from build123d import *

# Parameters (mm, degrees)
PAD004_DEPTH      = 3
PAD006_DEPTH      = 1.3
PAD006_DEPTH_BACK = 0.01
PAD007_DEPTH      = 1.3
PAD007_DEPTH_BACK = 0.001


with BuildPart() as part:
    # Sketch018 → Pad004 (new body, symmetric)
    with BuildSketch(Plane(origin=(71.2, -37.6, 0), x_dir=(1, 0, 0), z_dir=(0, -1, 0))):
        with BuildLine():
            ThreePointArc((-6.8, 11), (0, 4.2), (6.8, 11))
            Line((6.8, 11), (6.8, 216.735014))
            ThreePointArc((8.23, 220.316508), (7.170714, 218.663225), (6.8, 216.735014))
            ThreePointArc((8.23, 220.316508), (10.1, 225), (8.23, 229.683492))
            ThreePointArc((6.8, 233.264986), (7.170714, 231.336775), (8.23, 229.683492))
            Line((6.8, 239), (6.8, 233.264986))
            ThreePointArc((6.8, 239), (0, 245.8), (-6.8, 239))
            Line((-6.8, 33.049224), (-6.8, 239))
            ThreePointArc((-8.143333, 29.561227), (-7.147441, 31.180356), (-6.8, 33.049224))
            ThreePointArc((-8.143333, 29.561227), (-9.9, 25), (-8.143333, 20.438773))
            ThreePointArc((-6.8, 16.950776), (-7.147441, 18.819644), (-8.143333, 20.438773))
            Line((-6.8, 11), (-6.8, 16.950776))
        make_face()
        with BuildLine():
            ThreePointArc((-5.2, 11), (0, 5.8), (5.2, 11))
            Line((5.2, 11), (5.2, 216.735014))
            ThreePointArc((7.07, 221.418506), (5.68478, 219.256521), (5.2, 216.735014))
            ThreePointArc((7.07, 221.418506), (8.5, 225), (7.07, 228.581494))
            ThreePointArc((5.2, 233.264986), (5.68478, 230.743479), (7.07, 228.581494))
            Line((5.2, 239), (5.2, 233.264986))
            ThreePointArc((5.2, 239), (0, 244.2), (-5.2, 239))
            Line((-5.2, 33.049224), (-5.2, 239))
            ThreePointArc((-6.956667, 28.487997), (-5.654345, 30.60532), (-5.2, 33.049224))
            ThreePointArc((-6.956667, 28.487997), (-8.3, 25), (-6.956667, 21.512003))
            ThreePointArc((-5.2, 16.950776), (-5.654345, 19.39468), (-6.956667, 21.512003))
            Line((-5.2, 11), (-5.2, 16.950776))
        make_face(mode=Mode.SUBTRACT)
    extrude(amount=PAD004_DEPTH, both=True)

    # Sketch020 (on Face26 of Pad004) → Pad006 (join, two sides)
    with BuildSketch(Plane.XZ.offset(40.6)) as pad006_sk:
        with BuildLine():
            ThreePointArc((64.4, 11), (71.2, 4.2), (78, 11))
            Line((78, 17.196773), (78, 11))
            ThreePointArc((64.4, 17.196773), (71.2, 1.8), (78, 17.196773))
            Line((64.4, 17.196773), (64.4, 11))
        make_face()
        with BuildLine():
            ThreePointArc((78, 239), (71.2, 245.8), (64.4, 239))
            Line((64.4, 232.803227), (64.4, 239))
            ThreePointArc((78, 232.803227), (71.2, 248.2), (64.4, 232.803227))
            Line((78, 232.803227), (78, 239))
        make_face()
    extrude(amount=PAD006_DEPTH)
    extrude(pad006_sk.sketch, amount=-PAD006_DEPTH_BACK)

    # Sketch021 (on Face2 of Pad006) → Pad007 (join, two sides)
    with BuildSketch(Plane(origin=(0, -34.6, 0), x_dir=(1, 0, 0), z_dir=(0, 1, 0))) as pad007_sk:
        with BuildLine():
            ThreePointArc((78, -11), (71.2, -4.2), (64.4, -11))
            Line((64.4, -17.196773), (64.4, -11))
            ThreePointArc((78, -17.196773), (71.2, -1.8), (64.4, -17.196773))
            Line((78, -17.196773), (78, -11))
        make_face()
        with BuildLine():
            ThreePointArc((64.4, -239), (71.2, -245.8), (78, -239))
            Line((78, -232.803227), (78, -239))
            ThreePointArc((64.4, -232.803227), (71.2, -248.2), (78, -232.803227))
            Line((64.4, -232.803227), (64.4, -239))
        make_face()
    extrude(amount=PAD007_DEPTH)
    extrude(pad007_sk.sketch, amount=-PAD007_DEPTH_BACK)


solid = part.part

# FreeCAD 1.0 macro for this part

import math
import FreeCAD as App
import Part
import Sketcher

V = App.Vector
Q = App.Units.Quantity

doc = App.newDocument("Part")
body = doc.addObject("PartDesign::Body", "Body")

# Sketch on XZ plane
sketch1 = body.newObject("Sketcher::SketchObject", "Sketch")
sketch1.AttachmentSupport = (doc.getObject("XZ_Plane"), [""])
sketch1.MapMode = "FlatFace"
sketch1.AttachmentOffset = App.Placement(V(0, 0, 37.6), App.Rotation())
sketch1.addGeometry([
    Part.ArcOfCircle(Part.Circle(V(71.2, 11, 0), V(0, 0, 1), 6.8), math.radians(180), math.radians(360)),  # 0
    Part.LineSegment(V(78, 11, 0), V(78, 216.735014, 0)),  # 1
    Part.ArcOfCircle(Part.Circle(V(83.199998, 216.735015, 0), V(0, 0, 1), 5.199998), math.radians(136.468841), math.radians(180.000006)),  # 2
    Part.ArcOfCircle(Part.Circle(V(74.500001, 225, 0), V(0, 0, 1), 6.799999), math.radians(-43.531155), math.radians(43.531155)),  # 3
    Part.ArcOfCircle(Part.Circle(V(83.199998, 233.264985, 0), V(0, 0, 1), 5.199998), math.radians(179.999994), math.radians(223.531159)),  # 4
    Part.LineSegment(V(78, 233.264986, 0), V(78, 239, 0)),  # 5
    Part.ArcOfCircle(Part.Circle(V(71.2, 239, 0), V(0, 0, 1), 6.8), math.radians(0), math.radians(180)),  # 6
    Part.LineSegment(V(64.4, 239, 0), V(64.4, 33.049224, 0)),  # 7
    Part.ArcOfCircle(Part.Circle(V(59.199993, 33.049226, 0), V(0, 0, 1), 5.200007), math.radians(-42.12638), math.radians(-0.000025)),  # 8
    Part.ArcOfCircle(Part.Circle(V(68.1, 25, 0), V(0, 0, 1), 6.8), math.radians(137.87358), math.radians(222.12642)),  # 9
    Part.ArcOfCircle(Part.Circle(V(59.199993, 16.950774, 0), V(0, 0, 1), 5.200007), math.radians(0.000025), math.radians(42.12638)),  # 10
    Part.LineSegment(V(64.4, 16.950776, 0), V(64.4, 11, 0)),  # 11
    Part.ArcOfCircle(Part.Circle(V(71.2, 11, 0), V(0, 0, 1), 5.2), math.radians(180), math.radians(360)),  # 12
    Part.LineSegment(V(66, 11, 0), V(66, 16.950776, 0)),  # 13
    Part.ArcOfCircle(Part.Circle(V(59.200005, 16.950778, 0), V(0, 0, 1), 6.799995), math.radians(-0.000014), math.radians(42.126435)),  # 14
    Part.ArcOfCircle(Part.Circle(V(68.100001, 25, 0), V(0, 0, 1), 5.200001), math.radians(137.873595), math.radians(222.126405)),  # 15
    Part.ArcOfCircle(Part.Circle(V(59.200005, 33.049222, 0), V(0, 0, 1), 6.799995), math.radians(-42.126435), math.radians(0.000014)),  # 16
    Part.LineSegment(V(66, 33.049224, 0), V(66, 239, 0)),  # 17
    Part.ArcOfCircle(Part.Circle(V(71.2, 239, 0), V(0, 0, 1), 5.2), math.radians(0), math.radians(180)),  # 18
    Part.LineSegment(V(76.4, 239, 0), V(76.4, 233.264986, 0)),  # 19
    Part.ArcOfCircle(Part.Circle(V(83.199997, 233.264985, 0), V(0, 0, 1), 6.799997), math.radians(179.999994), math.radians(223.531161)),  # 20
    Part.ArcOfCircle(Part.Circle(V(74.5, 225, 0), V(0, 0, 1), 5.2), math.radians(-43.531153), math.radians(43.531153)),  # 21
    Part.ArcOfCircle(Part.Circle(V(83.199997, 216.735015, 0), V(0, 0, 1), 6.799997), math.radians(136.468839), math.radians(180.000006)),  # 22
    Part.LineSegment(V(76.4, 216.735014, 0), V(76.4, 11, 0)),  # 23
], False)
sketch1.addConstraint([
    Sketcher.Constraint("Tangent", 0, 2, 1, 1),
    Sketcher.Constraint("Tangent", 1, 2, 2, 2),
    Sketcher.Constraint("Tangent", 2, 1, 3, 1),
    Sketcher.Constraint("Tangent", 3, 2, 4, 2),
    Sketcher.Constraint("Tangent", 4, 1, 5, 1),
    Sketcher.Constraint("Tangent", 5, 2, 6, 1),
    Sketcher.Constraint("Tangent", 6, 2, 7, 1),
    Sketcher.Constraint("Tangent", 7, 2, 8, 2),
    Sketcher.Constraint("Tangent", 8, 1, 9, 1),
    Sketcher.Constraint("Tangent", 9, 2, 10, 2),
    Sketcher.Constraint("Tangent", 10, 1, 11, 1),
    Sketcher.Constraint("Tangent", 11, 2, 0, 1),
    Sketcher.Constraint("Tangent", 12, 1, 13, 1),
    Sketcher.Constraint("Tangent", 13, 2, 14, 1),
    Sketcher.Constraint("Tangent", 14, 2, 15, 2),
    Sketcher.Constraint("Tangent", 15, 1, 16, 1),
    Sketcher.Constraint("Tangent", 16, 2, 17, 1),
    Sketcher.Constraint("Tangent", 17, 2, 18, 2),
    Sketcher.Constraint("Tangent", 18, 1, 19, 1),
    Sketcher.Constraint("Tangent", 19, 2, 20, 1),
    Sketcher.Constraint("Tangent", 20, 2, 21, 2),
    Sketcher.Constraint("Tangent", 21, 1, 22, 1),
    Sketcher.Constraint("Tangent", 22, 2, 23, 1),
    Sketcher.Constraint("Tangent", 23, 2, 12, 2),
    Sketcher.Constraint("Vertical", 1),
    Sketcher.Constraint("Vertical", 5),
    Sketcher.Constraint("Vertical", 7),
    Sketcher.Constraint("Vertical", 11),
    Sketcher.Constraint("Vertical", 13),
    Sketcher.Constraint("Vertical", 17),
    Sketcher.Constraint("Vertical", 19),
    Sketcher.Constraint("Vertical", 23),
    Sketcher.Constraint("Coincident", 12, 3, 0, 3),
    Sketcher.Constraint("Coincident", 15, 3, 9, 3),
    Sketcher.Constraint("Coincident", 18, 3, 6, 3),
    Sketcher.Constraint("Coincident", 20, 3, 4, 3),
    Sketcher.Constraint("Coincident", 21, 3, 3, 3),
    Sketcher.Constraint("Coincident", 22, 3, 2, 3),
    Sketcher.Constraint("Equal", 0, 3),
    Sketcher.Constraint("Equal", 2, 4),
    Sketcher.Constraint("Equal", 3, 6),
    Sketcher.Constraint("Equal", 6, 9),
    Sketcher.Constraint("Equal", 8, 10),
    Sketcher.Constraint("Equal", 4, 12),
    Sketcher.Constraint("Equal", 12, 15),
    Sketcher.Constraint("Equal", 14, 16),
    Sketcher.Constraint("Equal", 16, 20),
    Sketcher.Constraint("Horizontal", 16, 3, 7, 2),
    Sketcher.Constraint("Vertical", 2, 3, 4, 3),
    Sketcher.Constraint("Radius", 0, Q("6.8 mm")),
    Sketcher.Constraint("Radius", 2, Q("5.199998 mm")),
    Sketcher.Constraint("DistanceY", -1, 1, 0, 3, Q("11 mm")),
    Sketcher.Constraint("DistanceY", -1, 1, 3, 3, Q("225 mm")),
    Sketcher.Constraint("DistanceY", -1, 1, 6, 3, Q("239 mm")),
    Sketcher.Constraint("DistanceY", -1, 1, 9, 3, Q("25 mm")),
    Sketcher.Constraint("DistanceX", -1, 1, 0, 2, Q("78 mm")),
    Sketcher.Constraint("DistanceX", -1, 1, 3, 3, Q("74.500001 mm")),
    Sketcher.Constraint("DistanceX", -1, 1, 9, 3, Q("68.1 mm")),
])
pad1 = body.newObject("PartDesign::Pad", "Pad")
pad1.Profile = sketch1
pad1.Length = 6
pad1.Midplane = True

# Sketch on XZ plane
sketch2 = body.newObject("Sketcher::SketchObject", "Sketch001")
sketch2.AttachmentSupport = (doc.getObject("XZ_Plane"), [""])
sketch2.MapMode = "FlatFace"
sketch2.AttachmentOffset = App.Placement(V(0, 0, 40.6), App.Rotation())
sketch2.addGeometry([
    Part.ArcOfCircle(Part.Circle(V(71.2, 11, 0), V(0, 0, 1), 6.8), math.radians(180), math.radians(360)),  # 0
    Part.LineSegment(V(64.4, 11, 0), V(64.4, 17.196773, 0)),  # 1
    Part.ArcOfCircle(Part.Circle(V(71.2, 11, 0), V(0, 0, 1), 9.2), math.radians(137.657396), math.radians(402.342604)),  # 2
    Part.LineSegment(V(78, 17.196773, 0), V(78, 11, 0)),  # 3
    Part.ArcOfCircle(Part.Circle(V(71.2, 239, 0), V(0, 0, 1), 6.8), math.radians(0), math.radians(180)),  # 4
    Part.LineSegment(V(78, 239, 0), V(78, 232.803227, 0)),  # 5
    Part.ArcOfCircle(Part.Circle(V(71.2, 239, 0), V(0, 0, 1), 9.2), math.radians(-42.342604), math.radians(222.342604)),  # 6
    Part.LineSegment(V(64.4, 232.803227, 0), V(64.4, 239, 0)),  # 7
], False)
sketch2.addConstraint([
    Sketcher.Constraint("Tangent", 0, 1, 1, 1),
    Sketcher.Constraint("Coincident", 1, 2, 2, 1),
    Sketcher.Constraint("Coincident", 2, 2, 3, 1),
    Sketcher.Constraint("Tangent", 3, 2, 0, 2),
    Sketcher.Constraint("Tangent", 4, 1, 5, 1),
    Sketcher.Constraint("Coincident", 5, 2, 6, 1),
    Sketcher.Constraint("Coincident", 6, 2, 7, 1),
    Sketcher.Constraint("Tangent", 7, 2, 4, 2),
    Sketcher.Constraint("Vertical", 1),
    Sketcher.Constraint("Vertical", 3),
    Sketcher.Constraint("Vertical", 5),
    Sketcher.Constraint("Vertical", 7),
    Sketcher.Constraint("Coincident", 2, 3, 0, 3),
    Sketcher.Constraint("Coincident", 6, 3, 4, 3),
    Sketcher.Constraint("Equal", 0, 4),
    Sketcher.Constraint("Equal", 2, 6),
    Sketcher.Constraint("Vertical", 2, 3, 4, 3),
    Sketcher.Constraint("Radius", 0, Q("6.8 mm")),
    Sketcher.Constraint("Radius", 2, Q("9.2 mm")),
    Sketcher.Constraint("DistanceY", -1, 1, 0, 3, Q("11 mm")),
    Sketcher.Constraint("DistanceY", -1, 1, 4, 3, Q("239 mm")),
    Sketcher.Constraint("DistanceX", -1, 1, 2, 2, Q("78 mm")),
])
pad2 = body.newObject("PartDesign::Pad", "Pad001")
pad2.Profile = sketch2
pad2.Type = "TwoLengths"
pad2.Length = 1.3
pad2.Length2 = 0.01

# Sketch on XZ plane
sketch3 = body.newObject("Sketcher::SketchObject", "Sketch002")
sketch3.AttachmentSupport = (doc.getObject("XZ_Plane"), [""])
sketch3.MapMode = "FlatFace"
sketch3.AttachmentOffset = App.Placement(V(0, 0, 34.6), App.Rotation())
sketch3.addGeometry([
    Part.ArcOfCircle(Part.Circle(V(71.2, 11, 0), V(0, 0, 1), 6.8), math.radians(180), math.radians(360)),  # 0
    Part.LineSegment(V(78, 11, 0), V(78, 17.196773, 0)),  # 1
    Part.ArcOfCircle(Part.Circle(V(71.2, 11, 0), V(0, 0, 1), 9.2), math.radians(137.657396), math.radians(402.342604)),  # 2
    Part.LineSegment(V(64.4, 17.196773, 0), V(64.4, 11, 0)),  # 3
    Part.ArcOfCircle(Part.Circle(V(71.2, 239, 0), V(0, 0, 1), 6.8), math.radians(0), math.radians(180)),  # 4
    Part.LineSegment(V(64.4, 239, 0), V(64.4, 232.803227, 0)),  # 5
    Part.ArcOfCircle(Part.Circle(V(71.2, 239, 0), V(0, 0, 1), 9.2), math.radians(-42.342604), math.radians(222.342604)),  # 6
    Part.LineSegment(V(78, 232.803227, 0), V(78, 239, 0)),  # 7
], False)
sketch3.addConstraint([
    Sketcher.Constraint("Tangent", 0, 2, 1, 1),
    Sketcher.Constraint("Coincident", 1, 2, 2, 2),
    Sketcher.Constraint("Coincident", 2, 1, 3, 1),
    Sketcher.Constraint("Tangent", 3, 2, 0, 1),
    Sketcher.Constraint("Tangent", 4, 2, 5, 1),
    Sketcher.Constraint("Coincident", 5, 2, 6, 2),
    Sketcher.Constraint("Coincident", 6, 1, 7, 1),
    Sketcher.Constraint("Tangent", 7, 2, 4, 1),
    Sketcher.Constraint("Vertical", 1),
    Sketcher.Constraint("Vertical", 3),
    Sketcher.Constraint("Vertical", 5),
    Sketcher.Constraint("Vertical", 7),
    Sketcher.Constraint("Coincident", 2, 3, 0, 3),
    Sketcher.Constraint("Coincident", 6, 3, 4, 3),
    Sketcher.Constraint("Equal", 0, 4),
    Sketcher.Constraint("Equal", 2, 6),
    Sketcher.Constraint("Vertical", 2, 3, 4, 3),
    Sketcher.Constraint("Radius", 0, Q("6.8 mm")),
    Sketcher.Constraint("Radius", 2, Q("9.2 mm")),
    Sketcher.Constraint("DistanceY", -1, 1, 0, 3, Q("11 mm")),
    Sketcher.Constraint("DistanceY", -1, 1, 4, 3, Q("239 mm")),
    Sketcher.Constraint("DistanceX", -1, 1, 0, 2, Q("78 mm")),
])
pad3 = body.newObject("PartDesign::Pad", "Pad002")
pad3.Profile = sketch3
pad3.Type = "TwoLengths"
pad3.Length = 1.3
pad3.Length2 = 0.001
pad3.Reversed = True

doc.recompute()
